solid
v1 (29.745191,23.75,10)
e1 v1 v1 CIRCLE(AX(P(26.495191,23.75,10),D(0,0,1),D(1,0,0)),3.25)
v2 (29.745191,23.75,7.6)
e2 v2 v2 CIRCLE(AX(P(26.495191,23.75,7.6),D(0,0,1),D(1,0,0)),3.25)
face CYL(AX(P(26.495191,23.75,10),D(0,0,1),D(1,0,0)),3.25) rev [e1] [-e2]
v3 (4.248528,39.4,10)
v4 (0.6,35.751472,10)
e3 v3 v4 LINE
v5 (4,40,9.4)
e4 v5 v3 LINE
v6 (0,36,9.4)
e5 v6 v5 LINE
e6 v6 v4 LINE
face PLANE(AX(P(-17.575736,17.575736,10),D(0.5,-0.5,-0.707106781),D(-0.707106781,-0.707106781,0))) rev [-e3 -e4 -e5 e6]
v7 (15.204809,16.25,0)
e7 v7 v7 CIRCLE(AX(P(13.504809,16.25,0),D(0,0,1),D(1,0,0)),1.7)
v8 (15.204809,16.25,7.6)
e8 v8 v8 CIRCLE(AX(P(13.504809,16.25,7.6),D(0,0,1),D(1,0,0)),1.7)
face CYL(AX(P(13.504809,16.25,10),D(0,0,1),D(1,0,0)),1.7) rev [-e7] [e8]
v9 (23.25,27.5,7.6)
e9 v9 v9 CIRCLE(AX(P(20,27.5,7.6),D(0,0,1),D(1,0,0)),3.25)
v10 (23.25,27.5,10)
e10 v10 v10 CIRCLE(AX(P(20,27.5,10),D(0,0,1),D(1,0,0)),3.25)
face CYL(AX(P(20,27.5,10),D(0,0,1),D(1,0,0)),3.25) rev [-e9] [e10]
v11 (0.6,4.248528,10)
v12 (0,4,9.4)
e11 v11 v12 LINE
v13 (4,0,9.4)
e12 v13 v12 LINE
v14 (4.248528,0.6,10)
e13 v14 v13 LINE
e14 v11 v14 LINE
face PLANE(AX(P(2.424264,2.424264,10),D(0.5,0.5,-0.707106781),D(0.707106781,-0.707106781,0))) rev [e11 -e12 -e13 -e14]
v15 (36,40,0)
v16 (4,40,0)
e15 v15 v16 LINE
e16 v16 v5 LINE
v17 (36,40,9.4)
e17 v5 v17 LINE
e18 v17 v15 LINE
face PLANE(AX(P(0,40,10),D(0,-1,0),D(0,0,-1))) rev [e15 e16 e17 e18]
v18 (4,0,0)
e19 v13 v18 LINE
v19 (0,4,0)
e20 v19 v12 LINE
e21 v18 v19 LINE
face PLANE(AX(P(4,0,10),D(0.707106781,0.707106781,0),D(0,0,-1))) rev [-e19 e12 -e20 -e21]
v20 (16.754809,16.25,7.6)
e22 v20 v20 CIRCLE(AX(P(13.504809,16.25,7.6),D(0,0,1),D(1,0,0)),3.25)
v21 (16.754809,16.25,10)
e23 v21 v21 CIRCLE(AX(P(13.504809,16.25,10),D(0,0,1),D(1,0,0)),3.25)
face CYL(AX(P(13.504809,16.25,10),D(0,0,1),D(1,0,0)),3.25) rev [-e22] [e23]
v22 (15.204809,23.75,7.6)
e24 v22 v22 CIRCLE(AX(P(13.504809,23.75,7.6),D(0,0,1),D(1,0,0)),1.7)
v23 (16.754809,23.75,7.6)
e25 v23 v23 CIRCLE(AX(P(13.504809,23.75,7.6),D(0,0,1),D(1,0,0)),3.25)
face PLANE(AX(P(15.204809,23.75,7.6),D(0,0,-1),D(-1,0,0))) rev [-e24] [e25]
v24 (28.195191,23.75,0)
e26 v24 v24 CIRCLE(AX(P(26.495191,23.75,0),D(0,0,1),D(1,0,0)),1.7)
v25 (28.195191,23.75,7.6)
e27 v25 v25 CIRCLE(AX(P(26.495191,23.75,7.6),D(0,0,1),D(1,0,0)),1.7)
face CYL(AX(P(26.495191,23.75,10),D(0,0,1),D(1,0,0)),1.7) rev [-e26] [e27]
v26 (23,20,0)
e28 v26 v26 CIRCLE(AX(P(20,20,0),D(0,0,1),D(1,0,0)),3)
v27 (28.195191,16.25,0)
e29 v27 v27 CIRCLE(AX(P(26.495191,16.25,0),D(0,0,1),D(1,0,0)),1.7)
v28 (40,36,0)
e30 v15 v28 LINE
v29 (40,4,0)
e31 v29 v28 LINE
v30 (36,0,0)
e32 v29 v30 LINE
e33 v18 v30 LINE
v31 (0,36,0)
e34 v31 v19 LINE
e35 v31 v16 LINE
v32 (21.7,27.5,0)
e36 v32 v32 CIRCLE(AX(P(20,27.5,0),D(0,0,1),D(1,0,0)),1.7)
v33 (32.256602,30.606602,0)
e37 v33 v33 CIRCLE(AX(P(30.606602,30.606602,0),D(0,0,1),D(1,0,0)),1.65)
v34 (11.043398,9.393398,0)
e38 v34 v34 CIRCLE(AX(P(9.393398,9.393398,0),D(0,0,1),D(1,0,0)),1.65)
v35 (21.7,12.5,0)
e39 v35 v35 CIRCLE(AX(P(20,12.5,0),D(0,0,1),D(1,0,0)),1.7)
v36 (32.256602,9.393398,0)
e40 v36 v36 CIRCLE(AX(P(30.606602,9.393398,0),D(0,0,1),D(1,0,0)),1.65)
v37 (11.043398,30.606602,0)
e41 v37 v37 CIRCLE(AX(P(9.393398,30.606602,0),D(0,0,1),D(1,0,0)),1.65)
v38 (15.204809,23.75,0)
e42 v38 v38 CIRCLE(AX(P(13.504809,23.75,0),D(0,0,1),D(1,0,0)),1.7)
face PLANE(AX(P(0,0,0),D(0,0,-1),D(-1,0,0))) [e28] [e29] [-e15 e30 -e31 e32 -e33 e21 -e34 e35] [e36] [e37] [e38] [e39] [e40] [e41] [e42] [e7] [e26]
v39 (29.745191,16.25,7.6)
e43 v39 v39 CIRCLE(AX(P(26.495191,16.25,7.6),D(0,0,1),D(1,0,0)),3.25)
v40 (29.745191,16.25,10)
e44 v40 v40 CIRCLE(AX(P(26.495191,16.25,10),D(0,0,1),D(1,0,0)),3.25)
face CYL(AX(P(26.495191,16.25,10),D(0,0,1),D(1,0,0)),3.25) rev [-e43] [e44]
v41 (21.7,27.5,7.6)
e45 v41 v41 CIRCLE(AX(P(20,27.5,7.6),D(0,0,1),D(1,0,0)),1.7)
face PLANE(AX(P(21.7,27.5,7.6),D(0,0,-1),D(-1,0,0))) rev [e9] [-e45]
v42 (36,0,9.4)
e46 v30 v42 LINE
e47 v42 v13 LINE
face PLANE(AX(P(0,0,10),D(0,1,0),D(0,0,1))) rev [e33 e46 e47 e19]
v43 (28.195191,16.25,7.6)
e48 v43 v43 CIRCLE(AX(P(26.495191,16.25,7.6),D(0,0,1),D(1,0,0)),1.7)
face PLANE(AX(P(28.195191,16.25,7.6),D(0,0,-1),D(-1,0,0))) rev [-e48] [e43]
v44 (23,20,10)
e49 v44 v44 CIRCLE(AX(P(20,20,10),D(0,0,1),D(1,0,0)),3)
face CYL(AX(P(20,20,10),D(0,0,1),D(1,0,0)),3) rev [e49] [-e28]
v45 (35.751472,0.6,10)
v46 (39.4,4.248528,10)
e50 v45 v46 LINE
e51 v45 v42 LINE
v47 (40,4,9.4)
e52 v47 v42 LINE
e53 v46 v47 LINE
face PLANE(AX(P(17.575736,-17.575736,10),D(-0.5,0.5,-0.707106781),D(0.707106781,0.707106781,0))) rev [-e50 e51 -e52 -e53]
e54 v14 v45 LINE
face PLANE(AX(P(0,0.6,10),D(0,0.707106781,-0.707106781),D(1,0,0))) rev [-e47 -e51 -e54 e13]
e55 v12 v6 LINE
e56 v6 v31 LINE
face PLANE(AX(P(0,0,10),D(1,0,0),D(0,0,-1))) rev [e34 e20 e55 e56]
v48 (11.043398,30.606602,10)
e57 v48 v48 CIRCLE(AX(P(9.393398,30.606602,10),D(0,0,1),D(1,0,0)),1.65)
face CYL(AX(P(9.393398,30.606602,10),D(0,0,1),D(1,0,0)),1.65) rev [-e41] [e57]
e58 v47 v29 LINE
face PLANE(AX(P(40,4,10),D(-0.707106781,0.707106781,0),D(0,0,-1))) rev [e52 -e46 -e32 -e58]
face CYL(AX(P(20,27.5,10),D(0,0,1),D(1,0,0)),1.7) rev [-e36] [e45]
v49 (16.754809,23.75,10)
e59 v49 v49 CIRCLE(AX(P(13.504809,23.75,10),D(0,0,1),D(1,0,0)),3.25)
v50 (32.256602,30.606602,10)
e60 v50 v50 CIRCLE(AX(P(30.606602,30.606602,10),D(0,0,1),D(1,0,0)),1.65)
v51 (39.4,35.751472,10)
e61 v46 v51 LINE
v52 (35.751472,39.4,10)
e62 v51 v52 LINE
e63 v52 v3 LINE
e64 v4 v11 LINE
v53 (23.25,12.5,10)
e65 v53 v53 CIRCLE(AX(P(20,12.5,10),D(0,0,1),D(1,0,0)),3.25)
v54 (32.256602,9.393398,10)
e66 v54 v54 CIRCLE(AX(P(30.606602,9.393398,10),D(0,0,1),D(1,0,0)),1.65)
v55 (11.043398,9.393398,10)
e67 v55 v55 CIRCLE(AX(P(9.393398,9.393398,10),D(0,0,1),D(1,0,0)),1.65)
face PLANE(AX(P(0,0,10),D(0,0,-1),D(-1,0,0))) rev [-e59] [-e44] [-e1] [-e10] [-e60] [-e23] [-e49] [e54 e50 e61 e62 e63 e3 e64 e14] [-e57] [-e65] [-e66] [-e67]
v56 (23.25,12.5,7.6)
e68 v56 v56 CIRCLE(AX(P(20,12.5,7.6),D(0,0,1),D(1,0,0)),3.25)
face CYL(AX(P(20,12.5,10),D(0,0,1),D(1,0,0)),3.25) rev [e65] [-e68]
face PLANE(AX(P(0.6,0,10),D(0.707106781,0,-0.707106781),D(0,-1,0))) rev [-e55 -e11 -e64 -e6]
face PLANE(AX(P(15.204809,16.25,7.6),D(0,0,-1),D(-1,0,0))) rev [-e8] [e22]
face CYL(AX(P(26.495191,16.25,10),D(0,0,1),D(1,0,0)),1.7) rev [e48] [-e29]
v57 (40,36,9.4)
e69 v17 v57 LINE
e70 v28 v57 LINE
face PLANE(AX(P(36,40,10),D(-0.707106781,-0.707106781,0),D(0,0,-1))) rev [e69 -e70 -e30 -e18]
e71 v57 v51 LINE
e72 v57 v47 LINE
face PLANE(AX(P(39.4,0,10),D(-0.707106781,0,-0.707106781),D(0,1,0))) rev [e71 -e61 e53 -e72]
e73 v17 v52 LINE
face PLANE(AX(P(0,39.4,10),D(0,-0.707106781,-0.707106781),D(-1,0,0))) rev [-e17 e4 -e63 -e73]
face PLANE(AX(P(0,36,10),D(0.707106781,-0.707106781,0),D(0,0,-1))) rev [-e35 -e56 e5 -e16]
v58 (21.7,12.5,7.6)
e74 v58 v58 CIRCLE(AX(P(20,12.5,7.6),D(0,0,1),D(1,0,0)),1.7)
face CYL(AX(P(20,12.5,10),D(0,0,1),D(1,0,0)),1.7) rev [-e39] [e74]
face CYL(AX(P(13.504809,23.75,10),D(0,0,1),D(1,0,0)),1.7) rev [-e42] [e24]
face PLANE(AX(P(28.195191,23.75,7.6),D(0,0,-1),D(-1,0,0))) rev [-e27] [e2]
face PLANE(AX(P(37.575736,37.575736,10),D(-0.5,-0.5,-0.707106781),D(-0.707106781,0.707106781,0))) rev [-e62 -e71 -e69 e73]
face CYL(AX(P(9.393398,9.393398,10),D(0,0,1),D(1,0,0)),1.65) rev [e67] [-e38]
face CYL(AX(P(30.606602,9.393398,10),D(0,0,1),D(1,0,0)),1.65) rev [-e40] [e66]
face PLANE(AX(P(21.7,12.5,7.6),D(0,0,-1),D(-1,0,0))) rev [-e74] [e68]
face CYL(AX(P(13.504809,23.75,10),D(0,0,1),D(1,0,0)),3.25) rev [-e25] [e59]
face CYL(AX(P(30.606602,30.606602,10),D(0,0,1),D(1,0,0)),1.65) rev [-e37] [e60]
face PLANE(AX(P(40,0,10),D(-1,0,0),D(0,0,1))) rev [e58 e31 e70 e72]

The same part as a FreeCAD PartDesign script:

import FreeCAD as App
import Part
import Sketcher


def edges_at(feature, points):
    """Names of the edges that pass closest to the given points."""
    edges = feature.Shape.Edges
    near = lambda p: min(range(len(edges)), key=lambda i: edges[i].distToShape(Part.Vertex(*p))[0])
    return sorted({f"Edge{near(p) + 1}" for p in points})

doc = App.newDocument("Part")
body = doc.addObject("PartDesign::Body", "Body")

sketch1 = doc.addObject("Sketcher::SketchObject", "Sketch")
body.addObject(sketch1)
sketch1.AttachmentSupport = (doc.XY_Plane, [""])
sketch1.MapMode = "FlatFace"
sketch1.addGeometry([
    Part.LineSegment(App.Vector(0, 40, 0), App.Vector(0, 0, 0)),
    Part.LineSegment(App.Vector(0, 0, 0), App.Vector(40, 0, 0)),
    Part.LineSegment(App.Vector(40, 0, 0), App.Vector(40, 40, 0)),
    Part.LineSegment(App.Vector(40, 40, 0), App.Vector(0, 40, 0)),
], False)
sketch1.addConstraint([
    Sketcher.Constraint("Coincident", 0, 2, 1, 1),
    Sketcher.Constraint("Coincident", 1, 2, 2, 1),
    Sketcher.Constraint("Coincident", 2, 2, 3, 1),
    Sketcher.Constraint("Coincident", 3, 2, 0, 1),
    Sketcher.Constraint("Vertical", 0),
    Sketcher.Constraint("Horizontal", 1),
    Sketcher.Constraint("Vertical", 2),
    Sketcher.Constraint("Horizontal", 3),
    Sketcher.Constraint("Coincident", 0, 2, -1, 1),
    Sketcher.Constraint("Equal", 3, 0),
    Sketcher.Constraint("DistanceX", 1, 1, 1, 2, 40.0),
])
pad1 = doc.addObject("PartDesign::Pad", "Pad")
body.addObject(pad1)
pad1.Profile = sketch1
pad1.Length = 10

sketch2 = doc.addObject("Sketcher::SketchObject", "Sketch001")
body.addObject(sketch2)
sketch2.AttachmentSupport = (doc.XY_Plane, [""])
sketch2.MapMode = "FlatFace"
sketch2.AttachmentOffset = App.Placement(App.Vector(0, 0, 10), App.Rotation())
sketch2.addGeometry(Part.Circle(App.Vector(20, 20, 0), App.Vector(0, 0, 1), 3), False)
sketch2.addConstraint([
    Sketcher.Constraint("Diameter", 0, 6.0),
    Sketcher.Constraint("DistanceX", -1, 1, 0, 3, 20.0),
    Sketcher.Constraint("DistanceY", -1, 1, 0, 3, 20.0),
])
doc.recompute()
hole = doc.addObject("PartDesign::Hole", "Hole")
body.addObject(hole)
hole.Profile = sketch2
hole.ThreadType = "None"
hole.Diameter = 6
hole.DepthType = "ThroughAll"

sketch3 = doc.addObject("Sketcher::SketchObject", "Sketch002")
body.addObject(sketch3)
sketch3.AttachmentSupport = (doc.XY_Plane, [""])
sketch3.MapMode = "FlatFace"
sketch3.AttachmentOffset = App.Placement(App.Vector(0, 0, 10), App.Rotation())
sketch3.addGeometry([
    Part.Circle(App.Vector(13.504809, 23.75, 0), App.Vector(0, 0, 1), 1.7),
    Part.Circle(App.Vector(20, 27.5, 0), App.Vector(0, 0, 1), 1.7),
    Part.Circle(App.Vector(26.495191, 23.75, 0), App.Vector(0, 0, 1), 1.7),
    Part.Circle(App.Vector(26.495191, 16.25, 0), App.Vector(0, 0, 1), 1.7),
    Part.Circle(App.Vector(20, 12.5, 0), App.Vector(0, 0, 1), 1.7),
    Part.Circle(App.Vector(13.504809, 16.25, 0), App.Vector(0, 0, 1), 1.7),
], False)
sketch3.addConstraint([
    Sketcher.Constraint("Equal", 0, 1),
    Sketcher.Constraint("Equal", 1, 2),
    Sketcher.Constraint("Equal", 2, 3),
    Sketcher.Constraint("Equal", 3, 4),
    Sketcher.Constraint("Equal", 4, 5),
    Sketcher.Constraint("Horizontal", 0, 3, 2, 3),
    Sketcher.Constraint("Horizontal", 3, 3, 5, 3),
    Sketcher.Constraint("Vertical", 2, 3, 3, 3),
    Sketcher.Constraint("Vertical", 1, 3, 4, 3),
    Sketcher.Constraint("Vertical", 0, 3, 5, 3),
    Sketcher.Constraint("Diameter", 0, 3.4),
    Sketcher.Constraint("DistanceX", -1, 1, 1, 3, 20.0),
    Sketcher.Constraint("DistanceY", 4, 3, 1, 3, 15.0),
    Sketcher.Constraint("DistanceY", -1, 1, 1, 3, 27.5),
    Sketcher.Constraint("DistanceY", 3, 3, 2, 3, 7.5),
    Sketcher.Constraint("DistanceY", -1, 1, 0, 3, 23.75),
    Sketcher.Constraint("DistanceX", -1, 1, 0, 3, 13.504809),
    Sketcher.Constraint("DistanceX", -1, 1, 2, 3, 26.495191),
])
doc.recompute()
hole2 = doc.addObject("PartDesign::Hole", "Hole001")
body.addObject(hole2)
hole2.Profile = sketch3
hole2.ThreadType = "None"
hole2.Diameter = 3.4
hole2.DepthType = "ThroughAll"
hole2.HoleCutType = "Counterbore"
hole2.HoleCutDiameter = 6.5
hole2.HoleCutDepth = 2.4

sketch4 = doc.addObject("Sketcher::SketchObject", "Sketch003")
body.addObject(sketch4)
sketch4.AttachmentSupport = (doc.XY_Plane, [""])
sketch4.MapMode = "FlatFace"
sketch4.AttachmentOffset = App.Placement(App.Vector(0, 0, 10), App.Rotation())
sketch4.addGeometry([
    Part.Circle(App.Vector(9.393398, 9.393398, 0), App.Vector(0, 0, 1), 1.65),
    Part.Circle(App.Vector(9.393398, 30.606602, 0), App.Vector(0, 0, 1), 1.65),
    Part.Circle(App.Vector(30.606602, 30.606602, 0), App.Vector(0, 0, 1), 1.65),
    Part.Circle(App.Vector(30.606602, 9.393398, 0), App.Vector(0, 0, 1), 1.65),
], False)
sketch4.addConstraint([
    Sketcher.Constraint("Equal", 0, 1),
    Sketcher.Constraint("Equal", 1, 2),
    Sketcher.Constraint("Equal", 2, 3),
    Sketcher.Constraint("Horizontal", 1, 3, 2, 3),
    Sketcher.Constraint("Horizontal", 0, 3, 3, 3),
    Sketcher.Constraint("Vertical", 0, 3, 1, 3),
    Sketcher.Constraint("Vertical", 2, 3, 3, 3),
    Sketcher.Constraint("Diameter", 0, 3.3),
    Sketcher.Constraint("DistanceX", -1, 1, 0, 3, 9.393398),
    Sketcher.Constraint("DistanceY", -1, 1, 0, 3, 9.393398),
    Sketcher.Constraint("DistanceY", -1, 1, 1, 3, 30.606602),
    Sketcher.Constraint("DistanceX", -1, 1, 2, 3, 30.606602),
])
doc.recompute()
hole3 = doc.addObject("PartDesign::Hole", "Hole002")
body.addObject(hole3)
hole3.Profile = sketch4
hole3.ThreadType = "None"
hole3.Diameter = 3.3
hole3.DepthType = "ThroughAll"
doc.recompute()

chamfer = doc.addObject("PartDesign::Chamfer", "Chamfer")
body.addObject(chamfer)
chamfer.Base = (hole3, edges_at(hole3, [
    (0, 40, 5),
    (40, 40, 5),
    (40, 0, 5),
    (0, 0, 5),
]))
chamfer.Size = 4
doc.recompute()

chamfer2 = doc.addObject("PartDesign::Chamfer", "Chamfer001")
body.addObject(chamfer2)
chamfer2.Base = (chamfer, edges_at(chamfer, [
    (38, 2, 10),
    (40, 20, 10),
    (20, 0, 10),
    (0, 20, 10),
    (20, 40, 10),
    (2, 38, 10),
    (2, 2, 10),
    (38, 38, 10),
]))
chamfer2.Size = 0.6

doc.recompute()
